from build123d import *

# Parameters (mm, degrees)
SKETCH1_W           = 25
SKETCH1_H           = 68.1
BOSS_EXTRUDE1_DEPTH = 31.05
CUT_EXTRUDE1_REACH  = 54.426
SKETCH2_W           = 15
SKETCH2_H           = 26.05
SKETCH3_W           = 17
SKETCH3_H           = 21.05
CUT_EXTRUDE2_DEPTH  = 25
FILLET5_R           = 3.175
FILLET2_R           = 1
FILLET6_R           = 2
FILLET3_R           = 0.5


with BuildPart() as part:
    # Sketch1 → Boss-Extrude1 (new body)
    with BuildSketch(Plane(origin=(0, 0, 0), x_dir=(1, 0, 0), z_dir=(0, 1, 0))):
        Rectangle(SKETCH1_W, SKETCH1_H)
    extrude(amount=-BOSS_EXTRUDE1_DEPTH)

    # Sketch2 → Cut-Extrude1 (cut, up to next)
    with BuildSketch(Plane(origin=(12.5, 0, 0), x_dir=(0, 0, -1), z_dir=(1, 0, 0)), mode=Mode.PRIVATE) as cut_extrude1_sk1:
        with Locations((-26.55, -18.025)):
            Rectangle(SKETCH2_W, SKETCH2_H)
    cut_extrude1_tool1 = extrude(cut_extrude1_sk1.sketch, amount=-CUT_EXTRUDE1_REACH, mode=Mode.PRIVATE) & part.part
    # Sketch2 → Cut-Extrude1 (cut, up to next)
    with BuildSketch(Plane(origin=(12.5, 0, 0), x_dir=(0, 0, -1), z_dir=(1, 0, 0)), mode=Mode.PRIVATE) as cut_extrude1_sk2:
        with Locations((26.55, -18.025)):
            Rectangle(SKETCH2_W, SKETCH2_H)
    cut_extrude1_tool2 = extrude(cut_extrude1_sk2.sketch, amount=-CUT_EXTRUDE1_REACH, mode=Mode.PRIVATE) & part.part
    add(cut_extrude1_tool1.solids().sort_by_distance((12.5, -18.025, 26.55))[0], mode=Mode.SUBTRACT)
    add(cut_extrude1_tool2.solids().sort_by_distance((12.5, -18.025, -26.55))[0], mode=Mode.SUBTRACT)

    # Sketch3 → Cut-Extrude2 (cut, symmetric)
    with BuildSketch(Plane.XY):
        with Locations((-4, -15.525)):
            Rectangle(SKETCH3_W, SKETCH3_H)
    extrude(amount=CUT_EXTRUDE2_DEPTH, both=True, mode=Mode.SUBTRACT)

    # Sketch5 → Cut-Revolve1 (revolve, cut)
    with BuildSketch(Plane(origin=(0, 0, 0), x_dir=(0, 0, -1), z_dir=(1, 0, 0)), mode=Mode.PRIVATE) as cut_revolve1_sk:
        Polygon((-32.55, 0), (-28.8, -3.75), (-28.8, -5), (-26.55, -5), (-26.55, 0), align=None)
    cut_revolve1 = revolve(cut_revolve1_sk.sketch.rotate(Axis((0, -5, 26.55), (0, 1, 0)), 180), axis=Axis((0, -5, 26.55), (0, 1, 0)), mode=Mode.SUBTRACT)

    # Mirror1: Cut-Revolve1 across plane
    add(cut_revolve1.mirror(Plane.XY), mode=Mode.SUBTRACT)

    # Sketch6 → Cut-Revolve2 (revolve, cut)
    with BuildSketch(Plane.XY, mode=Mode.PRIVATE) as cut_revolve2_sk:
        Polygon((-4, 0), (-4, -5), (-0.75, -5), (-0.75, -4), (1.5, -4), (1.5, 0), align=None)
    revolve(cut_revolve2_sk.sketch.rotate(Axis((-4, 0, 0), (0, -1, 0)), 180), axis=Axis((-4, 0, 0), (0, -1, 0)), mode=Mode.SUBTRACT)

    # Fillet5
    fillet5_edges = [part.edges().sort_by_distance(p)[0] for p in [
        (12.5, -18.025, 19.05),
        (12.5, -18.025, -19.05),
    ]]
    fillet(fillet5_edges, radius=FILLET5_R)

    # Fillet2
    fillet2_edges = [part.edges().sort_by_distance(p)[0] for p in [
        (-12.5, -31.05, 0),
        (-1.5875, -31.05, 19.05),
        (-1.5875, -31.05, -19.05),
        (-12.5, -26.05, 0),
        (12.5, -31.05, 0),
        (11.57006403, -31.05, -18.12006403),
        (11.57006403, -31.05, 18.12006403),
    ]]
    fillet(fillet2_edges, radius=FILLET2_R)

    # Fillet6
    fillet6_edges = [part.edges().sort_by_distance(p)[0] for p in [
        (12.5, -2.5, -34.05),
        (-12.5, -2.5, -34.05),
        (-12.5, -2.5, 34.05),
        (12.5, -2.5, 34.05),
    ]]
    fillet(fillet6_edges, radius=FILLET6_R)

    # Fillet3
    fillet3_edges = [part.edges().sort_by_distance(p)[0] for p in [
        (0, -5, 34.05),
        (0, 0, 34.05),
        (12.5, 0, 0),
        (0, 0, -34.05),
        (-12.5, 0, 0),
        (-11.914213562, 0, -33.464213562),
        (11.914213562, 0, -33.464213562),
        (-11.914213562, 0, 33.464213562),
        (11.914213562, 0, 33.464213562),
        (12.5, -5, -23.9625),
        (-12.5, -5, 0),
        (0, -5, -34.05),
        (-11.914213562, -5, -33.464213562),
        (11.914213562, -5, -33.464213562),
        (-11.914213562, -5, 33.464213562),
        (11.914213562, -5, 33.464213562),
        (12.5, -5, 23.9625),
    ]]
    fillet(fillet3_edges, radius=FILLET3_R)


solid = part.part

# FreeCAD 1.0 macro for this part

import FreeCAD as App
import Part
import Sketcher
from FreeCAD import Vector
Q = App.Units.Quantity


def edges_at(feature, points):
    """Names of the edges that pass closest to the given points."""
    edges = feature.Shape.Edges
    near = lambda p: min(range(len(edges)), key=lambda i: edges[i].distToShape(Part.Vertex(*p))[0])
    return sorted({f"Edge{near(p) + 1}" for p in points})


def add_polygon(sketch, points):
    """Adds a closed chain of lines whose ends are joined by coincident constraints."""
    first, n = sketch.GeometryCount, len(points)
    for a, b in zip(points, points[1:] + points[:1]):
        sketch.addGeometry(Part.LineSegment(App.Vector(*a, 0), App.Vector(*b, 0)), False)
    for i in range(n):
        sketch.addConstraint(Sketcher.Constraint("Coincident", first + i, 2, first + (i + 1) % n, 1))

doc = App.newDocument("Part")
body = doc.addObject("PartDesign::Body", "Body")

# Sketch on XZ plane
sketch1 = doc.addObject("Sketcher::SketchObject", "Sketch")
body.addObject(sketch1)
sketch1.AttachmentSupport = (doc.XZ_Plane, [""])
sketch1.MapMode = "FlatFace"
add_polygon(sketch1, [(-12.5, -34.05), (-12.5, 34.05), (12.5, 34.05), (12.5, -34.05)])  # lines 0-3
sketch1.addConstraint([
    Sketcher.Constraint("Vertical", 0),
    Sketcher.Constraint("Horizontal", 1),
    Sketcher.Constraint("Vertical", 2),
    Sketcher.Constraint("Horizontal", 3),
    Sketcher.Constraint("Symmetric", 0, 2, 2, 2, -1, 1),
    Sketcher.Constraint("DistanceX", 1, 1, 1, 2, 25.0),
    Sketcher.Constraint("DistanceY", 0, 1, 0, 2, 68.1),
])
pad1 = doc.addObject("PartDesign::Pad", "Pad")
body.addObject(pad1)
pad1.Profile = sketch1
pad1.Length = 31.05

# Sketch on YZ plane
sketch2 = doc.addObject("Sketcher::SketchObject", "Sketch001")
body.addObject(sketch2)
sketch2.AttachmentSupport = (doc.YZ_Plane, [""])
sketch2.MapMode = "FlatFace"
sketch2.AttachmentOffset = App.Placement(Vector(0, 0, 12.5), App.Rotation())
add_polygon(sketch2, [(-5, 34.05), (-31.05, 34.05), (-31.05, 19.05), (-5, 19.05)])  # lines 0-3
sketch2.addConstraint([
    Sketcher.Constraint("Horizontal", 0),
    Sketcher.Constraint("Vertical", 1),
    Sketcher.Constraint("Horizontal", 2),
    Sketcher.Constraint("Vertical", 3),
    Sketcher.Constraint("DistanceY", 1, 2, 1, 1, 15.0),
    Sketcher.Constraint("DistanceX", 2, 2, -1, 1, 5.0),
    Sketcher.Constraint("DistanceX", 0, 2, 0, 1, 26.05),
    Sketcher.Constraint("DistanceY", -1, 1, 0, 2, 34.05),
])
pocket1 = doc.addObject("PartDesign::Pocket", "Pocket")
body.addObject(pocket1)
pocket1.Profile = sketch2
pocket1.Type = "UpToFirst"

# Sketch on YZ plane
sketch3 = doc.addObject("Sketcher::SketchObject", "Sketch002")
body.addObject(sketch3)
sketch3.AttachmentSupport = (doc.YZ_Plane, [""])
sketch3.MapMode = "FlatFace"
sketch3.AttachmentOffset = App.Placement(Vector(0, 0, 12.5), App.Rotation())
add_polygon(sketch3, [(-5, -19.05), (-31.05, -19.05), (-31.05, -34.05), (-5, -34.05)])  # lines 0-3
sketch3.addConstraint([
    Sketcher.Constraint("Horizontal", 0),
    Sketcher.Constraint("Vertical", 1),
    Sketcher.Constraint("Horizontal", 2),
    Sketcher.Constraint("Vertical", 3),
    Sketcher.Constraint("DistanceY", 1, 2, 1, 1, 15.0),
    Sketcher.Constraint("DistanceX", 2, 2, -1, 1, 5.0),
    Sketcher.Constraint("DistanceX", 0, 2, 0, 1, 26.05),
    Sketcher.Constraint("DistanceY", 0, 2, -1, 1, 19.05),
])
pocket2 = doc.addObject("PartDesign::Pocket", "Pocket001")
body.addObject(pocket2)
pocket2.Profile = sketch3
pocket2.Type = "UpToFirst"

# Sketch on XY plane
sketch4 = doc.addObject("Sketcher::SketchObject", "Sketch003")
body.addObject(sketch4)
sketch4.AttachmentSupport = (doc.XY_Plane, [""])
sketch4.MapMode = "FlatFace"
add_polygon(sketch4, [(-12.5, -5), (-12.5, -26.05), (4.5, -26.05), (4.5, -5)])  # lines 0-3
sketch4.addConstraint([
    Sketcher.Constraint("Vertical", 0),
    Sketcher.Constraint("Horizontal", 1),
    Sketcher.Constraint("Vertical", 2),
    Sketcher.Constraint("Horizontal", 3),
    Sketcher.Constraint("DistanceX", 1, 1, 1, 2, 17.0),
    Sketcher.Constraint("DistanceY", 2, 2, -1, 1, 5.0),
    Sketcher.Constraint("DistanceY", 0, 2, 0, 1, 21.05),
    Sketcher.Constraint("DistanceX", 0, 2, -1, 1, 12.5),
])
pocket3 = doc.addObject("PartDesign::Pocket", "Pocket002")
body.addObject(pocket3)
pocket3.Profile = sketch4
pocket3.Length = 50
pocket3.Midplane = True

# Sketch on YZ plane
sketch5 = doc.addObject("Sketcher::SketchObject", "Sketch004")
body.addObject(sketch5)
sketch5.AttachmentSupport = (doc.YZ_Plane, [""])
sketch5.MapMode = "FlatFace"
add_polygon(sketch5, [(0, 32.55), (-3.75, 28.8), (-5, 28.8), (-5, 26.55), (0, 26.55)])  # lines 0-4
sketch5.addGeometry(Part.LineSegment(Vector(-5, 26.55, 0), Vector(0, 26.55, 0)), True)  # axis
sketch5.addConstraint([
    Sketcher.Constraint("Horizontal", 1),
    Sketcher.Constraint("Vertical", 2),
    Sketcher.Constraint("Horizontal", 3),
    Sketcher.Constraint("Vertical", 4),
    Sketcher.Constraint("Horizontal", 5),
    Sketcher.Constraint("Coincident", 5, 1, 2, 2),
    Sketcher.Constraint("PointOnObject", 3, 2, -2),
    Sketcher.Constraint("PointOnObject", 5, 2, -2),
    Sketcher.Constraint("DistanceX", 3, 1, 3, 2, 5.0),
    Sketcher.Constraint("DistanceY", 4, 1, 4, 2, 6.0),
    Sketcher.Constraint("Angle", 0, Q("-135 deg")),
    Sketcher.Constraint("DistanceX", 1, 2, 1, 1, 1.25),
    Sketcher.Constraint("DistanceY", -1, 1, 0, 2, 28.8),
])
groove = doc.addObject("PartDesign::Groove", "Groove")
body.addObject(groove)
groove.Profile = sketch5
groove.ReferenceAxis = (sketch5, ["Axis0"])
groove.Angle = 360
doc.recompute()

mirrored = doc.addObject("PartDesign::Mirrored", "Mirrored")
body.addObject(mirrored)
mirrored.Originals = [groove]
mirrored.MirrorPlane = (doc.XY_Plane, [""])
body.Tip = mirrored

# Sketch on XY plane
sketch6 = doc.addObject("Sketcher::SketchObject", "Sketch005")
body.addObject(sketch6)
sketch6.AttachmentSupport = (doc.XY_Plane, [""])
sketch6.MapMode = "FlatFace"
add_polygon(sketch6, [(-4, 0), (-4, -5), (-0.75, -5), (-0.75, -4), (1.5, -4), (1.5, 0)])  # lines 0-5
sketch6.addGeometry(Part.LineSegment(Vector(-4, 0, 0), Vector(-4, -5, 0)), True)  # axis
sketch6.addConstraint([
    Sketcher.Constraint("Vertical", 0),
    Sketcher.Constraint("Horizontal", 1),
    Sketcher.Constraint("Vertical", 2),
    Sketcher.Constraint("Horizontal", 3),
    Sketcher.Constraint("Vertical", 4),
    Sketcher.Constraint("Horizontal", 5),
    Sketcher.Constraint("Vertical", 6),
    Sketcher.Constraint("Coincident", 6, 1, 5, 2),
    Sketcher.Constraint("PointOnObject", 4, 2, -1),
    Sketcher.Constraint("Horizontal", 1, 2, 6, 2),
    Sketcher.Constraint("DistanceY", 0, 2, 0, 1, 5.0),
    Sketcher.Constraint("DistanceY", 2, 1, 2, 2, 1.0),
    Sketcher.Constraint("DistanceX", 5, 2, 5, 1, 5.5),
    Sketcher.Constraint("DistanceX", 0, 2, -1, 1, 4.0),
    Sketcher.Constraint("DistanceX", 1, 1, 1, 2, 3.25),
])
groove2 = doc.addObject("PartDesign::Groove", "Groove001")
body.addObject(groove2)
groove2.Profile = sketch6
groove2.ReferenceAxis = (sketch6, ["Axis0"])
groove2.Angle = 360
doc.recompute()

fillet = doc.addObject("PartDesign::Fillet", "Fillet")
body.addObject(fillet)
fillet.Base = (groove2, edges_at(groove2, [(12.5, -18.025, 19.05), (12.5, -18.025, -19.05)]))
fillet.Radius = 3.175
doc.recompute()

fillet2 = doc.addObject("PartDesign::Fillet", "Fillet001")
body.addObject(fillet2)
fillet2.Base = (fillet, edges_at(fillet, [
    (-12.5, -31.05, 0),
    (-1.587, -31.05, 19.05),
    (-1.587, -31.05, -19.05),
    (-12.5, -26.05, 0),
    (12.5, -31.05, 0),
    (11.57, -31.05, -18.12),
    (11.57, -31.05, 18.12),
]))
fillet2.Radius = 1
doc.recompute()

fillet3 = doc.addObject("PartDesign::Fillet", "Fillet002")
body.addObject(fillet3)
fillet3.Base = (fillet2, edges_at(fillet2, [
    (12.5, -2.5, -34.05),
    (-12.5, -2.5, -34.05),
    (-12.5, -2.5, 34.05),
    (12.5, -2.5, 34.05),
]))
fillet3.Radius = 2
doc.recompute()

fillet4 = doc.addObject("PartDesign::Fillet", "Fillet003")
body.addObject(fillet4)
fillet4.Base = (fillet3, edges_at(fillet3, [
    (0, -5, 34.05),
    (0, 0, 34.05),
    (12.5, 0, 0),
    (0, 0, -34.05),
    (-12.5, 0, 0),
    (-11.914, 0, -33.464),
    (11.914, 0, -33.464),
    (-11.914, 0, 33.464),
    (11.914, 0, 33.464),
    (12.5, -5, -23.962),
    (-12.5, -5, 0),
    (0, -5, -34.05),
    (-11.914, -5, -33.464),
    (11.914, -5, -33.464),
    (-11.914, -5, 33.464),
    (11.914, -5, 33.464),
    (12.5, -5, 23.962),
]))
fillet4.Radius = 0.5

doc.recompute()
